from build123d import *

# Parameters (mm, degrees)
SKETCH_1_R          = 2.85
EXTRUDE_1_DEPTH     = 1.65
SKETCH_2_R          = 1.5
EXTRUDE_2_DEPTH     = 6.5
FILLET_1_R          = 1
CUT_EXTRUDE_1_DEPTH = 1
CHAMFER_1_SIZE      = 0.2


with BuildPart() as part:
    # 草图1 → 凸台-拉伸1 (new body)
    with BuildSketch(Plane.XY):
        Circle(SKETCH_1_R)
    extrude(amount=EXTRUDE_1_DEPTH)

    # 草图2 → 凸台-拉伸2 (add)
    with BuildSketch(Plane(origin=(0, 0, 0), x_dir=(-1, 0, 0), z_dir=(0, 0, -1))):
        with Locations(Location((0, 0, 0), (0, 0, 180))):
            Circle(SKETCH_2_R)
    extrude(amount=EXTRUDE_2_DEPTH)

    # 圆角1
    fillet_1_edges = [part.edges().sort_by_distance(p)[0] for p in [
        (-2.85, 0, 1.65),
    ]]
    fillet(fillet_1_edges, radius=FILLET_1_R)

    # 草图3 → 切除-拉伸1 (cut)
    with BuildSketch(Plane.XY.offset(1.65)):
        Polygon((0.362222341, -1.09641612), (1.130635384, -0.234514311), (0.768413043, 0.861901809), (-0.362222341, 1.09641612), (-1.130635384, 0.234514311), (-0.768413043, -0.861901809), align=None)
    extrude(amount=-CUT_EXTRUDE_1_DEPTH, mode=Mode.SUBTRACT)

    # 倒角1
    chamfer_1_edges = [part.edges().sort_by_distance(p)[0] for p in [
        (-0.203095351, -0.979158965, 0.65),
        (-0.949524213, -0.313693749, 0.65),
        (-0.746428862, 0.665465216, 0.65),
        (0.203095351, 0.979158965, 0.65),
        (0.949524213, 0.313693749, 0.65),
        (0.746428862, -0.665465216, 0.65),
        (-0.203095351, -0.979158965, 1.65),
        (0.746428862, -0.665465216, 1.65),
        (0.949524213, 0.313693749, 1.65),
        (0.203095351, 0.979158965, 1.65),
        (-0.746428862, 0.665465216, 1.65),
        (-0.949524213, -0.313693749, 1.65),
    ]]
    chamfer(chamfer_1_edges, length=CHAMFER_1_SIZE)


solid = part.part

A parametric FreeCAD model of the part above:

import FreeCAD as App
import Part
import Sketcher

V = App.Vector
Q = App.Units.Quantity


def edges_at(feature, points):
    """Names of the edges that pass closest to the given points."""
    edges = feature.Shape.Edges
    near = lambda p: min(range(len(edges)), key=lambda i: edges[i].distToShape(Part.Vertex(*p))[0])
    return sorted({f"Edge{near(p) + 1}" for p in points})

doc = App.newDocument("Part")
params = doc.addObject("Spreadsheet::Sheet", "Params")
for row, (alias, value) in enumerate([
    ("sketch1_diameter", "5.7 mm"),
    ("pad1_length", "1.65 mm"),
    ("sketch2_diameter", "3 mm"),
    ("pad2_length", "6.5 mm"),
    ("fillet_radius", "1 mm"),
    ("pocket1_length", "1 mm"),
    ("chamfer_size", "0.2 mm"),
], start=1):
    params.set(f"A{row}", alias)
    params.set(f"B{row}", "=" + value)
    params.setAlias(f"B{row}", alias)

body = doc.addObject("PartDesign::Body", "Body")

sketch1 = doc.addObject("Sketcher::SketchObject", "Sketch")
body.addObject(sketch1)
sketch1.AttachmentSupport = (doc.XY_Plane, [""])
sketch1.MapMode = "FlatFace"
sketch1.addGeometry(Part.Circle(V(0, 0, 0), V(0, 0, 1), 2.9), False)
sketch1.addConstraint([
    Sketcher.Constraint("Coincident", 0, 3, -1, 1),
    Sketcher.Constraint("Diameter", 0, Q("5.7 mm")),
])
sketch1.setExpression("Constraints[1]", "Params.sketch1_diameter")
pad1 = doc.addObject("PartDesign::Pad", "Pad")
body.addObject(pad1)
pad1.Profile = sketch1
pad1.setExpression("Length", "Params.pad1_length")

sketch2 = doc.addObject("Sketcher::SketchObject", "Sketch001")
body.addObject(sketch2)
sketch2.AttachmentSupport = (doc.XY_Plane, [""])
sketch2.MapMode = "FlatFace"
sketch2.addGeometry(Part.Circle(V(0, 0, 0), V(0, 0, 1), 1.5), False)
sketch2.addConstraint([
    Sketcher.Constraint("Coincident", 0, 3, -1, 1),
    Sketcher.Constraint("Diameter", 0, Q("3 mm")),
])
sketch2.setExpression("Constraints[1]", "Params.sketch2_diameter")
pad2 = doc.addObject("PartDesign::Pad", "Pad001")
body.addObject(pad2)
pad2.Profile = sketch2
pad2.setExpression("Length", "Params.pad2_length")
pad2.Reversed = True
doc.recompute()

fillet = doc.addObject("PartDesign::Fillet", "Fillet")
body.addObject(fillet)
fillet.Base = (pad2, edges_at(pad2, [(-2.85, 0, 1.65)]))
fillet.setExpression("Radius", "Params.fillet_radius")

sketch3 = doc.addObject("Sketcher::SketchObject", "Sketch002")
body.addObject(sketch3)
sketch3.AttachmentSupport = (doc.XY_Plane, [""])
sketch3.MapMode = "FlatFace"
sketch3.AttachmentOffset = App.Placement(V(0, 0, 1.65), App.Rotation())
sketch3.addGeometry([
    Part.LineSegment(V(0.4, -1.1, 0), V(1.1, -0.2, 0)),
    Part.LineSegment(V(1.1, -0.2, 0), V(0.8, 0.9, 0)),
    Part.LineSegment(V(0.8, 0.9, 0), V(-0.4, 1.1, 0)),
    Part.LineSegment(V(-0.4, 1.1, 0), V(-1.1, 0.2, 0)),
    Part.LineSegment(V(-1.1, 0.2, 0), V(-0.8, -0.9, 0)),
    Part.LineSegment(V(-0.8, -0.9, 0), V(0.4, -1.1, 0)),
], False)
sketch3.addConstraint([
    Sketcher.Constraint("Coincident", 0, 2, 1, 1),
    Sketcher.Constraint("Coincident", 1, 2, 2, 1),
    Sketcher.Constraint("Coincident", 2, 2, 3, 1),
    Sketcher.Constraint("Coincident", 3, 2, 4, 1),
    Sketcher.Constraint("Coincident", 4, 2, 5, 1),
    Sketcher.Constraint("Coincident", 5, 2, 0, 1),
    Sketcher.Constraint("Symmetric", 0, 2, 3, 2, -1, 1),
    Sketcher.Constraint("Symmetric", 1, 2, 4, 2, -1, 1),
    Sketcher.Constraint("Symmetric", 2, 2, 5, 2, -1, 1),
    Sketcher.Constraint("Equal", 0, 1),
    Sketcher.Constraint("Equal", 1, 2),
    Sketcher.Constraint("Distance", 0, Q("1.154701 mm")),
    Sketcher.Constraint("DistanceY", -1, 1, 1, 2, Q("0.861902 mm")),
    Sketcher.Constraint("DistanceY", 3, 2, 2, 2, Q("0.861902 mm")),
    Sketcher.Constraint("DistanceY", 0, 2, 2, 2, Q("1.33093 mm")),
])
pocket1 = doc.addObject("PartDesign::Pocket", "Pocket")
body.addObject(pocket1)
pocket1.Profile = sketch3
pocket1.setExpression("Length", "Params.pocket1_length")
doc.recompute()

chamfer = doc.addObject("PartDesign::Chamfer", "Chamfer")
body.addObject(chamfer)
chamfer.Base = (pocket1, edges_at(pocket1, [
    (-0.203, -0.979, 0.65),
    (-0.95, -0.314, 0.65),
    (-0.746, 0.665, 0.65),
    (0.203, 0.979, 0.65),
    (0.95, 0.314, 0.65),
    (0.746, -0.665, 0.65),
    (-0.203, -0.979, 1.65),
    (0.746, -0.665, 1.65),
    (0.95, 0.314, 1.65),
    (0.203, 0.979, 1.65),
    (-0.746, 0.665, 1.65),
    (-0.95, -0.314, 1.65),
]))
chamfer.setExpression("Size", "Params.chamfer_size")

doc.recompute()
